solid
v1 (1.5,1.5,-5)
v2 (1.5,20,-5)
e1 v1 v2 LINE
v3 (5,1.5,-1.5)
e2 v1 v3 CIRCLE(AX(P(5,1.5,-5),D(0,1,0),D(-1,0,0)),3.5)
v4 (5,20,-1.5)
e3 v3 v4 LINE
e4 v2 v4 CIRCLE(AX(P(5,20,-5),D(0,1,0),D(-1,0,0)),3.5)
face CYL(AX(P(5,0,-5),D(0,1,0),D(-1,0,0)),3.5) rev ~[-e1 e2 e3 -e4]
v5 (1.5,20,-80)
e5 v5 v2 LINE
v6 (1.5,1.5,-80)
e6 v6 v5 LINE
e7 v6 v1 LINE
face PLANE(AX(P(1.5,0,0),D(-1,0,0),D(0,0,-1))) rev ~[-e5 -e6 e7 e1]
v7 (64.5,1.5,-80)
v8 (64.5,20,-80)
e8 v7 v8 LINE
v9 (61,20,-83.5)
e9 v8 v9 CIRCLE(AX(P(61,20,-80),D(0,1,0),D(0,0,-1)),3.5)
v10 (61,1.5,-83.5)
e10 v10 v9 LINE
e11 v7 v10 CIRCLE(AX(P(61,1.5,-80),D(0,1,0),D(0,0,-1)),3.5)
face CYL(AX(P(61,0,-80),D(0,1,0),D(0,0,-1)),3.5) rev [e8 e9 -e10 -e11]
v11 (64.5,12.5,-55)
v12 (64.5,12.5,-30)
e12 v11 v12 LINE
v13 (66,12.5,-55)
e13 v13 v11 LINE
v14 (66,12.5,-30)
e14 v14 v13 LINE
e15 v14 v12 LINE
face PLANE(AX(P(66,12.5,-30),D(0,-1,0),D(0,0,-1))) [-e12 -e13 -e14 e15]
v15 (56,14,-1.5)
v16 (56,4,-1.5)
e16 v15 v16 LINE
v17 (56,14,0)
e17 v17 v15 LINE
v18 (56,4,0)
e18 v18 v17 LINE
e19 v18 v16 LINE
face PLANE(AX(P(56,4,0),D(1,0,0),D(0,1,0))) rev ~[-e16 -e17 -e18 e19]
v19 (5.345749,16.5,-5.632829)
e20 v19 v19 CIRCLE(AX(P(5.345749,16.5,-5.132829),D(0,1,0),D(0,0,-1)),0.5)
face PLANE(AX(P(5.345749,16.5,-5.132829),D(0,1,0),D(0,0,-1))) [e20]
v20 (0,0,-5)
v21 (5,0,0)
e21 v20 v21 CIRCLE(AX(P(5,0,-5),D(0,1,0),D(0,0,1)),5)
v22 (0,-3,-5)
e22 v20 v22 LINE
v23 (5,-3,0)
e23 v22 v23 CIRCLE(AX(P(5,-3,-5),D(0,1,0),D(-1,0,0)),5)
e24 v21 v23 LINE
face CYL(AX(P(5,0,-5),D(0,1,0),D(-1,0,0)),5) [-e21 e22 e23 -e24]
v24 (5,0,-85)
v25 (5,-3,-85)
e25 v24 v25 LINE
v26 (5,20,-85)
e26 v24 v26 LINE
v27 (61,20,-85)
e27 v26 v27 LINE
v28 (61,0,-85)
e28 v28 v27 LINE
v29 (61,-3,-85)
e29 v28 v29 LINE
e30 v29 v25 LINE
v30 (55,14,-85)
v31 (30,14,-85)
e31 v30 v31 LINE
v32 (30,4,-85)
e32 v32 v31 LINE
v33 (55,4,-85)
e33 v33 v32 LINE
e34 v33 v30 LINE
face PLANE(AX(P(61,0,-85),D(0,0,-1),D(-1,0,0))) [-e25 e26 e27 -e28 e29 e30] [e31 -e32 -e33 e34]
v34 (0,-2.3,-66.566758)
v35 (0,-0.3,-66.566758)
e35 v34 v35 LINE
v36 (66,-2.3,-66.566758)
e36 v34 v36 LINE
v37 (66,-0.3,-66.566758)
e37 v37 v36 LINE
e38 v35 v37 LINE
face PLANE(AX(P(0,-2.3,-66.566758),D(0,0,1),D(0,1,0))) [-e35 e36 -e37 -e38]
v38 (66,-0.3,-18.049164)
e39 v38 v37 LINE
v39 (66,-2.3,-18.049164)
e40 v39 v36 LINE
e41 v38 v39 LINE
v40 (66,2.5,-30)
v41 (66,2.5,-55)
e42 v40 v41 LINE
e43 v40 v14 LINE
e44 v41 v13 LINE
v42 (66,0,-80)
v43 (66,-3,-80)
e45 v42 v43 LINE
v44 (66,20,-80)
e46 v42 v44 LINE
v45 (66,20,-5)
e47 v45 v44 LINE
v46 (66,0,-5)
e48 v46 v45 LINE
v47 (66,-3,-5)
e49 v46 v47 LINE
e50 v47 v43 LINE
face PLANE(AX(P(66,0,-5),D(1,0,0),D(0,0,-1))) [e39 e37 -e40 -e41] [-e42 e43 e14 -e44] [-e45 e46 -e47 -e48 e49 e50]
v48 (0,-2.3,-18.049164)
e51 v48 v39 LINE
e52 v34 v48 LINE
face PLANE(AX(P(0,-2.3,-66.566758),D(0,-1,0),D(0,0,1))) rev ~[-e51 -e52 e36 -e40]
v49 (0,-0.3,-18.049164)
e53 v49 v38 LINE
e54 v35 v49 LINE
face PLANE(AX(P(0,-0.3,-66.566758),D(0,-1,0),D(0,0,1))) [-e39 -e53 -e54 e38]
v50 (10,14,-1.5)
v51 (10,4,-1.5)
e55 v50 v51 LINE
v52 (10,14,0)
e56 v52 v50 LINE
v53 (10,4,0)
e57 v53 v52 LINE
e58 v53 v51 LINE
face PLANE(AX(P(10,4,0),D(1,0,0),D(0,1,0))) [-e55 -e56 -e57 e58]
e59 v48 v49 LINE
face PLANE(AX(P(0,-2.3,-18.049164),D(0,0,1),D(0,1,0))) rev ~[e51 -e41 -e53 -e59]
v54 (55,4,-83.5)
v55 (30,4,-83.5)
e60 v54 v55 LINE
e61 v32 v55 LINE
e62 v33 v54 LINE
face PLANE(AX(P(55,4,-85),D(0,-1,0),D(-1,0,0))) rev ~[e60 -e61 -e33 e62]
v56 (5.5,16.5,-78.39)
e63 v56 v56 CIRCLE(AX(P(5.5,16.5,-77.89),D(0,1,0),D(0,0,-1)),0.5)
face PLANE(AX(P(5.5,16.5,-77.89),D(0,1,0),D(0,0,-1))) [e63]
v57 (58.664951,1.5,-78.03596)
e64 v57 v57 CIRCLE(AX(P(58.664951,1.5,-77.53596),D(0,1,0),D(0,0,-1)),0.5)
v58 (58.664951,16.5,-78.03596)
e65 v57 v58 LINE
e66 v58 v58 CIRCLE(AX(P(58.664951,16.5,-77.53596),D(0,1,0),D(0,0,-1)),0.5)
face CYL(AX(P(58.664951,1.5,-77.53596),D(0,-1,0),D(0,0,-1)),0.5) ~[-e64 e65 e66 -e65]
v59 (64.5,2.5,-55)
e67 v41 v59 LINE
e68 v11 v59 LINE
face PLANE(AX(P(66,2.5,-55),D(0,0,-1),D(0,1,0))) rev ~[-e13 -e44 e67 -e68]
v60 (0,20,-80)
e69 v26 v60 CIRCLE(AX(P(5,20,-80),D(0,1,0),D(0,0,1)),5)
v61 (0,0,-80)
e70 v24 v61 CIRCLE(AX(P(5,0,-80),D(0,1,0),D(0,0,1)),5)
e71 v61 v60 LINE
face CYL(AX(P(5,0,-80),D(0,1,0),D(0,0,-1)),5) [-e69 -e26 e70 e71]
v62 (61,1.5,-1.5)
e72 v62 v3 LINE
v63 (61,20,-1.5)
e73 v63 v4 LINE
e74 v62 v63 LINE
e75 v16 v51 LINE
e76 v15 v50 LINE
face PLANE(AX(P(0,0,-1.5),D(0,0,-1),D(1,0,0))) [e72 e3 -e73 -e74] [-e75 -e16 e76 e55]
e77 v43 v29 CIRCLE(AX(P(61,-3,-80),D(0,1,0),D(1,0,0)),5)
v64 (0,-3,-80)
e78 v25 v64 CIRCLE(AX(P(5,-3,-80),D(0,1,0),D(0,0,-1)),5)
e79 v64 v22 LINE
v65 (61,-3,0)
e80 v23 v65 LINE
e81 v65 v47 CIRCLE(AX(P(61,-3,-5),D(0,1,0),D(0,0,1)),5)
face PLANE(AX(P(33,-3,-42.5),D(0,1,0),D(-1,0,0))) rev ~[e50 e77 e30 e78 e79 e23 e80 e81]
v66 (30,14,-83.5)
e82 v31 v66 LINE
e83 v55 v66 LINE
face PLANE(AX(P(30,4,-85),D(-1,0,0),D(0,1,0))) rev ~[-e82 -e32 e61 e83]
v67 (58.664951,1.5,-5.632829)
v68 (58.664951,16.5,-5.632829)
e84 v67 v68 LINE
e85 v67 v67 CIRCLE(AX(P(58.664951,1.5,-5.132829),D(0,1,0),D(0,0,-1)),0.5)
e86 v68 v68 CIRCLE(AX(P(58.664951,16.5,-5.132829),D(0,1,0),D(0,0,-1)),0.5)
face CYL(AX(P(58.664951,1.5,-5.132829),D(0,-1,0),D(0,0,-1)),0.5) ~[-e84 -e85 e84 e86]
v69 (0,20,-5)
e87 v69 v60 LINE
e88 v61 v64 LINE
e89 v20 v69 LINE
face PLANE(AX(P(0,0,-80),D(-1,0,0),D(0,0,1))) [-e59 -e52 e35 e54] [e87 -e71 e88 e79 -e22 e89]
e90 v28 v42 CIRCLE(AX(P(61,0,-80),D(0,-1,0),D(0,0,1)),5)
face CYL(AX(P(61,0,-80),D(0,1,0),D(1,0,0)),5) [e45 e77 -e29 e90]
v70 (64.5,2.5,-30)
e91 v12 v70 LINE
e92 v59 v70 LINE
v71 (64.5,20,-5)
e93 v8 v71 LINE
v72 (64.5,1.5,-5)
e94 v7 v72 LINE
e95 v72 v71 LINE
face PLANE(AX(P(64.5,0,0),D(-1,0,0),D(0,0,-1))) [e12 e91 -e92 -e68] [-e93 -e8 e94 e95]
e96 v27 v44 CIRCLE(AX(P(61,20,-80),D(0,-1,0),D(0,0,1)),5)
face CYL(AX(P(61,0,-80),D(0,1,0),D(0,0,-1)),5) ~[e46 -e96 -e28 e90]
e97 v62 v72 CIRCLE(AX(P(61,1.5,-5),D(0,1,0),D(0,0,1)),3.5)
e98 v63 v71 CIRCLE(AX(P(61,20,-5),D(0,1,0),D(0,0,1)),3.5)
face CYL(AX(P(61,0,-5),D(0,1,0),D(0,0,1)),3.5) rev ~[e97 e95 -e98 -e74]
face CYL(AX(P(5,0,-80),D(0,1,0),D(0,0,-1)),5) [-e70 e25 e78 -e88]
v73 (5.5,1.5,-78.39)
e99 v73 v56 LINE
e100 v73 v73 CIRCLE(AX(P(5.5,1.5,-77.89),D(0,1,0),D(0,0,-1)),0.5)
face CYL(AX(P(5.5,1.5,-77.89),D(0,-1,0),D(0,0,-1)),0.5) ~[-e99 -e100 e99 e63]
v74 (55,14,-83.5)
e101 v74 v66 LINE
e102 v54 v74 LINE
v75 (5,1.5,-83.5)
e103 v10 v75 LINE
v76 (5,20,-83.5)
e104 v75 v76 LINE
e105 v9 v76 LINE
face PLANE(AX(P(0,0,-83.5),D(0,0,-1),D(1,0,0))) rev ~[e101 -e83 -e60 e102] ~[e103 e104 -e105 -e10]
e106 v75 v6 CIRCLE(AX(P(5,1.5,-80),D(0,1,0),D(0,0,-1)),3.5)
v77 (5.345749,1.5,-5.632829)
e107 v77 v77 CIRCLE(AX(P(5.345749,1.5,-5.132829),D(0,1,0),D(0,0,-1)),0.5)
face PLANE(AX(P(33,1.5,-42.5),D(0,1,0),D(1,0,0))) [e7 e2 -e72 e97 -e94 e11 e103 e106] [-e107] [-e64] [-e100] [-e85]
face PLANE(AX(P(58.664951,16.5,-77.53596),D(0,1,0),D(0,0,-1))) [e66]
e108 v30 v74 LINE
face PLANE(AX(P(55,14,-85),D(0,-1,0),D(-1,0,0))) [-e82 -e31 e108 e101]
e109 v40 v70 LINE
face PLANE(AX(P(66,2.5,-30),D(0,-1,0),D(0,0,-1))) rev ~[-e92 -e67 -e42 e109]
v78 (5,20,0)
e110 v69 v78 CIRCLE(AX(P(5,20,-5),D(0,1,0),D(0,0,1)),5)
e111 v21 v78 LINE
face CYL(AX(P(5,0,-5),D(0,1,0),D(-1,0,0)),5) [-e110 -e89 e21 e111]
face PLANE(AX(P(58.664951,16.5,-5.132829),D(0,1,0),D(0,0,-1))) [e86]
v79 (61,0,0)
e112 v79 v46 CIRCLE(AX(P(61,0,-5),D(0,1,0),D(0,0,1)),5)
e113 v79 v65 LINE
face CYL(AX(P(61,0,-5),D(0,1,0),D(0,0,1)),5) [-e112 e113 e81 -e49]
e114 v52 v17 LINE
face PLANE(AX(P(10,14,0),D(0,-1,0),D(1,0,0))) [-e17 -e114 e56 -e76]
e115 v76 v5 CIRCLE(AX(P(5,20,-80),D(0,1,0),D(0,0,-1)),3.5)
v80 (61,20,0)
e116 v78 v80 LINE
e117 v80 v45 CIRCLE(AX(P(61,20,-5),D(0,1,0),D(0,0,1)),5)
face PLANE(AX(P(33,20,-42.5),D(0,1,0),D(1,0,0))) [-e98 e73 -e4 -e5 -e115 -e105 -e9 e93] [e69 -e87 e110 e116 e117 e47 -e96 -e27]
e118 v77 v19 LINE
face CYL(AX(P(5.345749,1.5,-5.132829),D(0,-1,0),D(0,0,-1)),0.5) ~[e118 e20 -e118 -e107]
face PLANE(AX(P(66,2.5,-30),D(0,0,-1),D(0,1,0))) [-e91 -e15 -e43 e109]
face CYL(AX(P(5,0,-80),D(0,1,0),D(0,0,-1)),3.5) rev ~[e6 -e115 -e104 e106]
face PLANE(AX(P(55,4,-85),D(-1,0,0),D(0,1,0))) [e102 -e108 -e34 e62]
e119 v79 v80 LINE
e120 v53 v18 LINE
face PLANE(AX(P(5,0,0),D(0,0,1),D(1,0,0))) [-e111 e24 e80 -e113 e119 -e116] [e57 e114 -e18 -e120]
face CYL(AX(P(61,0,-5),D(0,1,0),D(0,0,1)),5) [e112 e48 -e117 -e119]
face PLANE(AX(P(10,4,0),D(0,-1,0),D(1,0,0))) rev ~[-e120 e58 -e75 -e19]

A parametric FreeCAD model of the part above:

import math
import FreeCAD as App
import Part
import Sketcher


def edges_at(feature, points):
    """Names of the edges that pass closest to the given points."""
    edges = feature.Shape.Edges
    near = lambda p: min(range(len(edges)), key=lambda i: edges[i].distToShape(Part.Vertex(*p))[0])
    return sorted({f"Edge{near(p) + 1}" for p in points})


def faces_at(feature, points):
    """Names of the faces that lie closest to the given points."""
    faces = feature.Shape.Faces
    near = lambda p: min(range(len(faces)), key=lambda i: faces[i].distToShape(Part.Vertex(*p))[0])
    return sorted({f"Face{near(p) + 1}" for p in points})


def add_polygon(sketch, points):
    """Adds a closed chain of lines whose ends are joined by coincident constraints."""
    first, n = sketch.GeometryCount, len(points)
    for a, b in zip(points, points[1:] + points[:1]):
        sketch.addGeometry(Part.LineSegment(App.Vector(*a, 0), App.Vector(*b, 0)), False)
    for i in range(n):
        sketch.addConstraint(Sketcher.Constraint("Coincident", first + i, 2, first + (i + 1) % n, 1))

doc = App.newDocument("Part")
params = doc.addObject("Spreadsheet::Sheet", "Params")
for row, (alias, value) in enumerate([
    ("sketch1_width", "66 mm"),
    ("sketch1_height", "85 mm"),
    ("pad1_length", "20 mm"),
    ("fillet_radius", "5 mm"),
    ("fillet2_radius", "5 mm"),
    ("fillet3_radius", "5 mm"),
    ("thickness_wall", "1.5 mm"),
    ("sketch2_diameter", "1 mm"),
    ("pad2_length", "15 mm"),
    ("sketch3_diameter", "1 mm"),
    ("pad3_length", "15 mm"),
    ("sketch4_width", "25 mm"),
    ("sketch4_height", "10 mm"),
    ("pocket1_length", "2 mm"),
    ("sketch5_width", "46 mm"),
    ("sketch5_height", "10 mm"),
    ("pocket2_length", "2 mm"),
    ("sketch6_radius", "5 mm"),
    ("sketch6_width", "56 mm"),
    ("sketch6_height", "75 mm"),
    ("pad4_length", "3 mm"),
    ("sketch7_width", "2 mm"),
    ("pocket3_length", "80 mm"),
    ("sketch8_width", "10 mm"),
    ("sketch8_height", "25 mm"),
    ("pocket4_length", "2 mm"),
], start=1):
    params.set(f"A{row}", alias)
    params.set(f"B{row}", "=" + value)
    params.setAlias(f"B{row}", alias)

body = doc.addObject("PartDesign::Body", "Body")

# Sketch on XZ plane
sketch1 = body.newObject("Sketcher::SketchObject", "Sketch")
sketch1.AttachmentSupport = (doc.getObject("XZ_Plane"), [""])
sketch1.MapMode = "FlatFace"
add_polygon(sketch1, [(0, -85), (0, 0), (66, 0), (66, -85)])  # lines 0-3
sketch1.addConstraint(Sketcher.Constraint("Vertical", 0))
sketch1.addConstraint(Sketcher.Constraint("Horizontal", 1))
sketch1.addConstraint(Sketcher.Constraint("Vertical", 2))
sketch1.addConstraint(Sketcher.Constraint("Horizontal", 3))
sketch1.addConstraint(Sketcher.Constraint("Coincident", 0, 2, -1, 1))
sketch1.addConstraint(Sketcher.Constraint("DistanceX", 1, 1, 1, 2, 66.0))
sketch1.addConstraint(Sketcher.Constraint("DistanceY", 0, 1, 0, 2, 85.0))
sketch1.setExpression("Constraints[9]", "Params.sketch1_width")
sketch1.setExpression("Constraints[10]", "Params.sketch1_height")
pad1 = body.newObject("PartDesign::Pad", "Pad")
pad1.Profile = sketch1
pad1.setExpression("Length", "Params.pad1_length")
pad1.Reversed = True
doc.recompute()

fillet = body.newObject("PartDesign::Fillet", "Fillet")
fillet.Base = (pad1, edges_at(pad1, [(66, 10, 0), (0, 10, 0)]))
fillet.setExpression("Radius", "Params.fillet_radius")
doc.recompute()

fillet2 = body.newObject("PartDesign::Fillet", "Fillet001")
fillet2.Base = (fillet, edges_at(fillet, [(66, 10, -85)]))
fillet2.setExpression("Radius", "Params.fillet2_radius")
doc.recompute()

fillet3 = body.newObject("PartDesign::Fillet", "Fillet002")
fillet3.Base = (fillet2, edges_at(fillet2, [(0, 10, -85)]))
fillet3.setExpression("Radius", "Params.fillet3_radius")
doc.recompute()

thickness = body.newObject("PartDesign::Thickness", "Thickness")
thickness.Base = (fillet3, faces_at(fillet3, [(33, 20, -42.5)]))
thickness.setExpression("Value", "Params.thickness_wall")
thickness.Reversed = True
thickness.Join = "Intersection"

# Sketch on XZ plane
sketch2 = body.newObject("Sketcher::SketchObject", "Sketch001")
sketch2.AttachmentSupport = (doc.getObject("XZ_Plane"), [""])
sketch2.MapMode = "FlatFace"
sketch2.AttachmentOffset = App.Placement(App.Vector(0, 0, -1.5), App.Rotation())
sketch2.addGeometry(Part.Circle(App.Vector(5.5, -77.9, 0), App.Vector(0, 0, 1), 0.5), False)
sketch2.addConstraint(Sketcher.Constraint("Diameter", 0, 1.0))
sketch2.addConstraint(Sketcher.Constraint("DistanceX", -1, 1, 0, 3, 5.5))
sketch2.addConstraint(Sketcher.Constraint("DistanceY", 0, 3, -1, 1, 77.89))
sketch2.setExpression("Constraints[0]", "Params.sketch2_diameter")
pad2 = body.newObject("PartDesign::Pad", "Pad001")
pad2.Profile = sketch2
pad2.setExpression("Length", "Params.pad2_length")
pad2.Reversed = True

# Sketch on XZ plane
sketch3 = body.newObject("Sketcher::SketchObject", "Sketch002")
sketch3.AttachmentSupport = (doc.getObject("XZ_Plane"), [""])
sketch3.MapMode = "FlatFace"
sketch3.AttachmentOffset = App.Placement(App.Vector(0, 0, -1.5), App.Rotation())
sketch3.addGeometry(Part.Circle(App.Vector(58.7, -77.5, 0), App.Vector(0, 0, 1), 0.5), False)
sketch3.addGeometry(Part.Circle(App.Vector(58.7, -5.1, 0), App.Vector(0, 0, 1), 0.5), False)
sketch3.addGeometry(Part.Circle(App.Vector(5.3, -5.1, 0), App.Vector(0, 0, 1), 0.5), False)
sketch3.addConstraint(Sketcher.Constraint("Equal", 0, 1))
sketch3.addConstraint(Sketcher.Constraint("Equal", 1, 2))
sketch3.addConstraint(Sketcher.Constraint("Horizontal", 1, 3, 2, 3))
sketch3.addConstraint(Sketcher.Constraint("Vertical", 0, 3, 1, 3))
sketch3.addConstraint(Sketcher.Constraint("Diameter", 0, 1.0))
sketch3.addConstraint(Sketcher.Constraint("DistanceX", 2, 3, 1, 3, 53.319202))
sketch3.addConstraint(Sketcher.Constraint("DistanceX", -1, 1, 0, 3, 58.664951))
sketch3.addConstraint(Sketcher.Constraint("DistanceY", 0, 3, -1, 1, 77.53596))
sketch3.addConstraint(Sketcher.Constraint("DistanceY", 1, 3, -1, 1, 5.132829))
sketch3.setExpression("Constraints[4]", "Params.sketch3_diameter")
pad3 = body.newObject("PartDesign::Pad", "Pad002")
pad3.Profile = sketch3
pad3.setExpression("Length", "Params.pad3_length")
pad3.Reversed = True

# Sketch on XY plane
sketch4 = body.newObject("Sketcher::SketchObject", "Sketch003")
sketch4.AttachmentSupport = (doc.getObject("XY_Plane"), [""])
sketch4.MapMode = "FlatFace"
sketch4.AttachmentOffset = App.Placement(App.Vector(0, 0, -85), App.Rotation())
add_polygon(sketch4, [(55, 14), (55, 4), (30, 4), (30, 14)])  # lines 0-3
sketch4.addConstraint(Sketcher.Constraint("Vertical", 0))
sketch4.addConstraint(Sketcher.Constraint("Horizontal", 1))
sketch4.addConstraint(Sketcher.Constraint("Vertical", 2))
sketch4.addConstraint(Sketcher.Constraint("Horizontal", 3))
sketch4.addConstraint(Sketcher.Constraint("DistanceX", 1, 2, 1, 1, 25.0))
sketch4.addConstraint(Sketcher.Constraint("DistanceY", 0, 2, 0, 1, 10.0))
sketch4.addConstraint(Sketcher.Constraint("DistanceX", -1, 1, 0, 2, 55.0))
sketch4.addConstraint(Sketcher.Constraint("DistanceY", -1, 1, 0, 2, 4.0))
sketch4.setExpression("Constraints[8]", "Params.sketch4_width")
sketch4.setExpression("Constraints[9]", "Params.sketch4_height")
pocket1 = body.newObject("PartDesign::Pocket", "Pocket")
pocket1.Profile = sketch4
pocket1.setExpression("Length", "Params.pocket1_length")
pocket1.Reversed = True

# Sketch on XY plane
sketch5 = body.newObject("Sketcher::SketchObject", "Sketch004")
sketch5.AttachmentSupport = (doc.getObject("XY_Plane"), [""])
sketch5.MapMode = "FlatFace"
add_polygon(sketch5, [(10, 14), (10, 4), (56, 4), (56, 14)])  # lines 0-3
sketch5.addConstraint(Sketcher.Constraint("Vertical", 0))
sketch5.addConstraint(Sketcher.Constraint("Horizontal", 1))
sketch5.addConstraint(Sketcher.Constraint("Vertical", 2))
sketch5.addConstraint(Sketcher.Constraint("Horizontal", 3))
sketch5.addConstraint(Sketcher.Constraint("DistanceX", 1, 1, 1, 2, 46.0))
sketch5.addConstraint(Sketcher.Constraint("DistanceY", 0, 2, 0, 1, 10.0))
sketch5.addConstraint(Sketcher.Constraint("DistanceX", -1, 1, 0, 2, 10.0))
sketch5.addConstraint(Sketcher.Constraint("DistanceY", -1, 1, 0, 2, 4.0))
sketch5.setExpression("Constraints[8]", "Params.sketch5_width")
sketch5.setExpression("Constraints[9]", "Params.sketch5_height")
pocket2 = body.newObject("PartDesign::Pocket", "Pocket001")
pocket2.Profile = sketch5
pocket2.setExpression("Length", "Params.pocket2_length")

# Sketch on XZ plane
sketch6 = body.newObject("Sketcher::SketchObject", "Sketch005")
sketch6.AttachmentSupport = (doc.getObject("XZ_Plane"), [""])
sketch6.MapMode = "FlatFace"
sketch6.addGeometry(Part.LineSegment(App.Vector(61, 0, 0), App.Vector(5, 0, 0)), False)
sketch6.addGeometry(Part.ArcOfCircle(Part.Circle(App.Vector(5, -5, 0), App.Vector(0, 0, 1), 5), math.radians(90), math.radians(180)), False)
sketch6.addGeometry(Part.LineSegment(App.Vector(0, -5, 0), App.Vector(0, -80, 0)), False)
sketch6.addGeometry(Part.ArcOfCircle(Part.Circle(App.Vector(5, -80, 0), App.Vector(0, 0, 1), 5), math.radians(180), math.radians(270)), False)
sketch6.addGeometry(Part.LineSegment(App.Vector(5, -85, 0), App.Vector(61, -85, 0)), False)
sketch6.addGeometry(Part.ArcOfCircle(Part.Circle(App.Vector(61, -80, 0), App.Vector(0, 0, 1), 5), math.radians(-90), math.radians(0)), False)
sketch6.addGeometry(Part.LineSegment(App.Vector(66, -80, 0), App.Vector(66, -5, 0)), False)
sketch6.addGeometry(Part.ArcOfCircle(Part.Circle(App.Vector(61, -5, 0), App.Vector(0, 0, 1), 5), math.radians(0), math.radians(90)), False)
sketch6.addConstraint(Sketcher.Constraint("Tangent", 0, 2, 1, 1))
sketch6.addConstraint(Sketcher.Constraint("Tangent", 1, 2, 2, 1))
sketch6.addConstraint(Sketcher.Constraint("Tangent", 2, 2, 3, 1))
sketch6.addConstraint(Sketcher.Constraint("Tangent", 3, 2, 4, 1))
sketch6.addConstraint(Sketcher.Constraint("Tangent", 4, 2, 5, 1))
sketch6.addConstraint(Sketcher.Constraint("Tangent", 5, 2, 6, 1))
sketch6.addConstraint(Sketcher.Constraint("Tangent", 6, 2, 7, 1))
sketch6.addConstraint(Sketcher.Constraint("Tangent", 7, 2, 0, 1))
sketch6.addConstraint(Sketcher.Constraint("Horizontal", 0))
sketch6.addConstraint(Sketcher.Constraint("Vertical", 2))
sketch6.addConstraint(Sketcher.Constraint("Horizontal", 4))
sketch6.addConstraint(Sketcher.Constraint("Vertical", 6))
sketch6.addConstraint(Sketcher.Constraint("Equal", 1, 3))
sketch6.addConstraint(Sketcher.Constraint("Equal", 3, 5))
sketch6.addConstraint(Sketcher.Constraint("Equal", 5, 7))
sketch6.addConstraint(Sketcher.Constraint("PointOnObject", 0, 2, -1))
sketch6.addConstraint(Sketcher.Constraint("PointOnObject", 1, 2, -2))
sketch6.addConstraint(Sketcher.Constraint("Radius", 1, 5.0))
sketch6.addConstraint(Sketcher.Constraint("DistanceX", 0, 2, 0, 1, 56.0))
sketch6.addConstraint(Sketcher.Constraint("DistanceY", 2, 2, 2, 1, 75.0))
sketch6.setExpression("Constraints[17]", "Params.sketch6_radius")
sketch6.setExpression("Constraints[18]", "Params.sketch6_width")
sketch6.setExpression("Constraints[19]", "Params.sketch6_height")
pad4 = body.newObject("PartDesign::Pad", "Pad003")
pad4.Profile = sketch6
pad4.setExpression("Length", "Params.pad4_length")

# Sketch on YZ plane
sketch7 = body.newObject("Sketcher::SketchObject", "Sketch006")
sketch7.AttachmentSupport = (doc.getObject("YZ_Plane"), [""])
sketch7.MapMode = "FlatFace"
add_polygon(sketch7, [(-0.3, -66.6), (-2.3, -66.6), (-2.3, -18), (-0.3, -18)])  # lines 0-3
sketch7.addConstraint(Sketcher.Constraint("Horizontal", 0))
sketch7.addConstraint(Sketcher.Constraint("Vertical", 1))
sketch7.addConstraint(Sketcher.Constraint("Horizontal", 2))
sketch7.addConstraint(Sketcher.Constraint("Vertical", 3))
sketch7.addConstraint(Sketcher.Constraint("DistanceX", 0, 2, 0, 1, 2.0))
sketch7.addConstraint(Sketcher.Constraint("DistanceX", 0, 2, -1, 1, 2.3))
sketch7.addConstraint(Sketcher.Constraint("DistanceY", 1, 1, 1, 2, 48.517594))
sketch7.addConstraint(Sketcher.Constraint("DistanceY", 0, 2, -1, 1, 66.566758))
sketch7.setExpression("Constraints[8]", "Params.sketch7_width")
pocket3 = body.newObject("PartDesign::Pocket", "Pocket002")
pocket3.Profile = sketch7
pocket3.setExpression("Length", "Params.pocket3_length")
pocket3.Reversed = True

# Sketch on YZ plane
sketch8 = body.newObject("Sketcher::SketchObject", "Sketch007")
sketch8.AttachmentSupport = (doc.getObject("YZ_Plane"), [""])
sketch8.MapMode = "FlatFace"
sketch8.AttachmentOffset = App.Placement(App.Vector(0, 0, 66), App.Rotation())
add_polygon(sketch8, [(12, -30), (2, -30), (2, -55), (12, -55)])  # lines 0-3
sketch8.addConstraint(Sketcher.Constraint("Horizontal", 0))
sketch8.addConstraint(Sketcher.Constraint("Vertical", 1))
sketch8.addConstraint(Sketcher.Constraint("Horizontal", 2))
sketch8.addConstraint(Sketcher.Constraint("Vertical", 3))
sketch8.addConstraint(Sketcher.Constraint("DistanceX", 0, 2, 0, 1, 10.0))
sketch8.addConstraint(Sketcher.Constraint("DistanceY", 1, 2, 1, 1, 25.0))
sketch8.addConstraint(Sketcher.Constraint("DistanceY", 0, 2, -1, 1, 30.0))
sketch8.addConstraint(Sketcher.Constraint("DistanceX", -1, 1, 0, 2, 2.5))
sketch8.setExpression("Constraints[8]", "Params.sketch8_width")
sketch8.setExpression("Constraints[9]", "Params.sketch8_height")
pocket4 = body.newObject("PartDesign::Pocket", "Pocket003")
pocket4.Profile = sketch8
pocket4.setExpression("Length", "Params.pocket4_length")

doc.recompute()
